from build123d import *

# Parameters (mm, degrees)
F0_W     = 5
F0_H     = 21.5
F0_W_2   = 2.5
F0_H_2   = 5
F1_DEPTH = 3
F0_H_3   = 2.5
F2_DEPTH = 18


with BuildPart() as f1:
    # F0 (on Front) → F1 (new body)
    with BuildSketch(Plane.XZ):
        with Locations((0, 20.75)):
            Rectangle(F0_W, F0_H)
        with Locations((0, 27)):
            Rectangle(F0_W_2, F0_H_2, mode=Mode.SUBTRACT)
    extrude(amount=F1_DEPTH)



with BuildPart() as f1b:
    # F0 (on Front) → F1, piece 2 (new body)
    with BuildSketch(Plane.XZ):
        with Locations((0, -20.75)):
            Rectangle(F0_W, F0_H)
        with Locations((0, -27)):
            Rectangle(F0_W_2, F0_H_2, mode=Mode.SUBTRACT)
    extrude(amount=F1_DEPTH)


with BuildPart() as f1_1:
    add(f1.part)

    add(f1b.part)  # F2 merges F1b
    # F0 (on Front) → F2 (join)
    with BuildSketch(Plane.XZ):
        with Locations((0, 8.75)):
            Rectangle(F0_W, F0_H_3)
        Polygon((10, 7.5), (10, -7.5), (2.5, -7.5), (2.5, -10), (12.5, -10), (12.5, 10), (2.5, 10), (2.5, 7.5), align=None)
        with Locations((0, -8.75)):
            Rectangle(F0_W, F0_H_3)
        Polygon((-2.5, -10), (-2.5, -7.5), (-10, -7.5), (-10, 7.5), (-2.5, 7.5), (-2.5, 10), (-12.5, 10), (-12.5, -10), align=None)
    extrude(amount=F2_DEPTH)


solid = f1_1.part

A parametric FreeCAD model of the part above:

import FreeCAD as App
import Part
import Sketcher
Q = App.Units.Quantity


def add_polygon(sketch, points):
    """Adds a closed chain of lines whose ends are joined by coincident constraints."""
    first, n = sketch.GeometryCount, len(points)
    for a, b in zip(points, points[1:] + points[:1]):
        sketch.addGeometry(Part.LineSegment(App.Vector(*a, 0), App.Vector(*b, 0)), False)
    for i in range(n):
        sketch.addConstraint(Sketcher.Constraint("Coincident", first + i, 2, first + (i + 1) % n, 1))

doc = App.newDocument("Part")
body = doc.addObject("PartDesign::Body", "Body")

# Sketch on XZ plane
sketch1 = body.newObject("Sketcher::SketchObject", "Sketch")
sketch1.AttachmentSupport = (doc.getObject("XZ_Plane"), [""])
sketch1.MapMode = "FlatFace"
add_polygon(sketch1, [(-2.5, 31.5), (-2.5, 10), (2.5, 10), (2.5, 31.5)])  # lines 0-3
add_polygon(sketch1, [(1.25, 24.5), (-1.25, 24.5), (-1.25, 29.5), (1.25, 29.5)])  # lines 4-7
sketch1.addConstraint(Sketcher.Constraint("Vertical", 0))
sketch1.addConstraint(Sketcher.Constraint("Horizontal", 1))
sketch1.addConstraint(Sketcher.Constraint("Vertical", 2))
sketch1.addConstraint(Sketcher.Constraint("Horizontal", 3))
sketch1.addConstraint(Sketcher.Constraint("Horizontal", 4))
sketch1.addConstraint(Sketcher.Constraint("Vertical", 5))
sketch1.addConstraint(Sketcher.Constraint("Horizontal", 6))
sketch1.addConstraint(Sketcher.Constraint("Vertical", 7))
sketch1.addConstraint(Sketcher.Constraint("Equal", 3, 5))
sketch1.addConstraint(Sketcher.Constraint("DistanceX", 1, 1, 1, 2, Q("5 mm")))
sketch1.addConstraint(Sketcher.Constraint("DistanceX", 4, 2, 4, 1, Q("2.5 mm")))
sketch1.addConstraint(Sketcher.Constraint("DistanceY", 0, 2, 0, 1, Q("21.5 mm")))
sketch1.addConstraint(Sketcher.Constraint("DistanceY", -1, 1, 0, 2, Q("10 mm")))
sketch1.addConstraint(Sketcher.Constraint("DistanceY", 4, 2, 3, 2, Q("7 mm")))
sketch1.addConstraint(Sketcher.Constraint("DistanceX", 0, 2, -1, 1, Q("2.5 mm")))
sketch1.addConstraint(Sketcher.Constraint("DistanceX", 4, 2, -1, 1, Q("1.25 mm")))
pad1 = body.newObject("PartDesign::Pad", "Pad")
pad1.Profile = sketch1
pad1.Length = 3
body2 = doc.addObject("PartDesign::Body", "Body001")

# Sketch on XZ plane
sketch2 = body2.newObject("Sketcher::SketchObject", "Sketch001")
sketch2.AttachmentSupport = (doc.getObject("XZ_Plane001"), [""])
sketch2.MapMode = "FlatFace"
add_polygon(sketch2, [(-2.5, -10), (-2.5, -31.5), (2.5, -31.5), (2.5, -10)])  # lines 0-3
add_polygon(sketch2, [(1.25, -29.5), (-1.25, -29.5), (-1.25, -24.5), (1.25, -24.5)])  # lines 4-7
sketch2.addConstraint(Sketcher.Constraint("Vertical", 0))
sketch2.addConstraint(Sketcher.Constraint("Horizontal", 1))
sketch2.addConstraint(Sketcher.Constraint("Vertical", 2))
sketch2.addConstraint(Sketcher.Constraint("Horizontal", 3))
sketch2.addConstraint(Sketcher.Constraint("Horizontal", 4))
sketch2.addConstraint(Sketcher.Constraint("Vertical", 5))
sketch2.addConstraint(Sketcher.Constraint("Horizontal", 6))
sketch2.addConstraint(Sketcher.Constraint("Vertical", 7))
sketch2.addConstraint(Sketcher.Constraint("Equal", 3, 5))
sketch2.addConstraint(Sketcher.Constraint("DistanceX", 1, 1, 1, 2, Q("5 mm")))
sketch2.addConstraint(Sketcher.Constraint("DistanceX", 4, 2, 4, 1, Q("2.5 mm")))
sketch2.addConstraint(Sketcher.Constraint("DistanceY", 0, 2, 0, 1, Q("21.5 mm")))
sketch2.addConstraint(Sketcher.Constraint("DistanceY", 2, 2, -1, 1, Q("10 mm")))
sketch2.addConstraint(Sketcher.Constraint("DistanceY", 0, 2, 4, 2, Q("2 mm")))
sketch2.addConstraint(Sketcher.Constraint("DistanceX", 0, 2, -1, 1, Q("2.5 mm")))
sketch2.addConstraint(Sketcher.Constraint("DistanceX", 4, 2, -1, 1, Q("1.25 mm")))
pad2 = body2.newObject("PartDesign::Pad", "Pad001")
pad2.Profile = sketch2
pad2.Length = 3
body.AllowCompound = True
doc.recompute()

boolean = body.newObject("PartDesign::Boolean", "Boolean")
boolean.Type = "Fuse"
boolean.addObjects([body2])

# Sketch on XZ plane
sketch3 = body.newObject("Sketcher::SketchObject", "Sketch002")
sketch3.AttachmentSupport = (doc.getObject("XZ_Plane"), [""])
sketch3.MapMode = "FlatFace"
add_polygon(sketch3, [(12.5, -10), (12.5, 10), (-12.5, 10), (-12.5, -10)])  # lines 0-3
add_polygon(sketch3, [(10, 7.5), (10, -7.5), (-10, -7.5), (-10, 7.5)])  # lines 4-7
sketch3.addConstraint(Sketcher.Constraint("Vertical", 0))
sketch3.addConstraint(Sketcher.Constraint("Horizontal", 1))
sketch3.addConstraint(Sketcher.Constraint("Vertical", 2))
sketch3.addConstraint(Sketcher.Constraint("Horizontal", 3))
sketch3.addConstraint(Sketcher.Constraint("Vertical", 4))
sketch3.addConstraint(Sketcher.Constraint("Horizontal", 5))
sketch3.addConstraint(Sketcher.Constraint("Vertical", 6))
sketch3.addConstraint(Sketcher.Constraint("Horizontal", 7))
sketch3.addConstraint(Sketcher.Constraint("Symmetric", 0, 2, 2, 2, -1, 1))
sketch3.addConstraint(Sketcher.Constraint("Symmetric", 4, 2, 6, 2, -1, 1))
sketch3.addConstraint(Sketcher.Constraint("Equal", 7, 0))
sketch3.addConstraint(Sketcher.Constraint("DistanceX", 1, 2, 1, 1, Q("25 mm")))
sketch3.addConstraint(Sketcher.Constraint("DistanceX", 5, 2, 5, 1, Q("20 mm")))
sketch3.addConstraint(Sketcher.Constraint("DistanceY", 4, 2, 4, 1, Q("15 mm")))
pad3 = body.newObject("PartDesign::Pad", "Pad002")
pad3.Profile = sketch3
pad3.Length = 18

doc.recompute()
